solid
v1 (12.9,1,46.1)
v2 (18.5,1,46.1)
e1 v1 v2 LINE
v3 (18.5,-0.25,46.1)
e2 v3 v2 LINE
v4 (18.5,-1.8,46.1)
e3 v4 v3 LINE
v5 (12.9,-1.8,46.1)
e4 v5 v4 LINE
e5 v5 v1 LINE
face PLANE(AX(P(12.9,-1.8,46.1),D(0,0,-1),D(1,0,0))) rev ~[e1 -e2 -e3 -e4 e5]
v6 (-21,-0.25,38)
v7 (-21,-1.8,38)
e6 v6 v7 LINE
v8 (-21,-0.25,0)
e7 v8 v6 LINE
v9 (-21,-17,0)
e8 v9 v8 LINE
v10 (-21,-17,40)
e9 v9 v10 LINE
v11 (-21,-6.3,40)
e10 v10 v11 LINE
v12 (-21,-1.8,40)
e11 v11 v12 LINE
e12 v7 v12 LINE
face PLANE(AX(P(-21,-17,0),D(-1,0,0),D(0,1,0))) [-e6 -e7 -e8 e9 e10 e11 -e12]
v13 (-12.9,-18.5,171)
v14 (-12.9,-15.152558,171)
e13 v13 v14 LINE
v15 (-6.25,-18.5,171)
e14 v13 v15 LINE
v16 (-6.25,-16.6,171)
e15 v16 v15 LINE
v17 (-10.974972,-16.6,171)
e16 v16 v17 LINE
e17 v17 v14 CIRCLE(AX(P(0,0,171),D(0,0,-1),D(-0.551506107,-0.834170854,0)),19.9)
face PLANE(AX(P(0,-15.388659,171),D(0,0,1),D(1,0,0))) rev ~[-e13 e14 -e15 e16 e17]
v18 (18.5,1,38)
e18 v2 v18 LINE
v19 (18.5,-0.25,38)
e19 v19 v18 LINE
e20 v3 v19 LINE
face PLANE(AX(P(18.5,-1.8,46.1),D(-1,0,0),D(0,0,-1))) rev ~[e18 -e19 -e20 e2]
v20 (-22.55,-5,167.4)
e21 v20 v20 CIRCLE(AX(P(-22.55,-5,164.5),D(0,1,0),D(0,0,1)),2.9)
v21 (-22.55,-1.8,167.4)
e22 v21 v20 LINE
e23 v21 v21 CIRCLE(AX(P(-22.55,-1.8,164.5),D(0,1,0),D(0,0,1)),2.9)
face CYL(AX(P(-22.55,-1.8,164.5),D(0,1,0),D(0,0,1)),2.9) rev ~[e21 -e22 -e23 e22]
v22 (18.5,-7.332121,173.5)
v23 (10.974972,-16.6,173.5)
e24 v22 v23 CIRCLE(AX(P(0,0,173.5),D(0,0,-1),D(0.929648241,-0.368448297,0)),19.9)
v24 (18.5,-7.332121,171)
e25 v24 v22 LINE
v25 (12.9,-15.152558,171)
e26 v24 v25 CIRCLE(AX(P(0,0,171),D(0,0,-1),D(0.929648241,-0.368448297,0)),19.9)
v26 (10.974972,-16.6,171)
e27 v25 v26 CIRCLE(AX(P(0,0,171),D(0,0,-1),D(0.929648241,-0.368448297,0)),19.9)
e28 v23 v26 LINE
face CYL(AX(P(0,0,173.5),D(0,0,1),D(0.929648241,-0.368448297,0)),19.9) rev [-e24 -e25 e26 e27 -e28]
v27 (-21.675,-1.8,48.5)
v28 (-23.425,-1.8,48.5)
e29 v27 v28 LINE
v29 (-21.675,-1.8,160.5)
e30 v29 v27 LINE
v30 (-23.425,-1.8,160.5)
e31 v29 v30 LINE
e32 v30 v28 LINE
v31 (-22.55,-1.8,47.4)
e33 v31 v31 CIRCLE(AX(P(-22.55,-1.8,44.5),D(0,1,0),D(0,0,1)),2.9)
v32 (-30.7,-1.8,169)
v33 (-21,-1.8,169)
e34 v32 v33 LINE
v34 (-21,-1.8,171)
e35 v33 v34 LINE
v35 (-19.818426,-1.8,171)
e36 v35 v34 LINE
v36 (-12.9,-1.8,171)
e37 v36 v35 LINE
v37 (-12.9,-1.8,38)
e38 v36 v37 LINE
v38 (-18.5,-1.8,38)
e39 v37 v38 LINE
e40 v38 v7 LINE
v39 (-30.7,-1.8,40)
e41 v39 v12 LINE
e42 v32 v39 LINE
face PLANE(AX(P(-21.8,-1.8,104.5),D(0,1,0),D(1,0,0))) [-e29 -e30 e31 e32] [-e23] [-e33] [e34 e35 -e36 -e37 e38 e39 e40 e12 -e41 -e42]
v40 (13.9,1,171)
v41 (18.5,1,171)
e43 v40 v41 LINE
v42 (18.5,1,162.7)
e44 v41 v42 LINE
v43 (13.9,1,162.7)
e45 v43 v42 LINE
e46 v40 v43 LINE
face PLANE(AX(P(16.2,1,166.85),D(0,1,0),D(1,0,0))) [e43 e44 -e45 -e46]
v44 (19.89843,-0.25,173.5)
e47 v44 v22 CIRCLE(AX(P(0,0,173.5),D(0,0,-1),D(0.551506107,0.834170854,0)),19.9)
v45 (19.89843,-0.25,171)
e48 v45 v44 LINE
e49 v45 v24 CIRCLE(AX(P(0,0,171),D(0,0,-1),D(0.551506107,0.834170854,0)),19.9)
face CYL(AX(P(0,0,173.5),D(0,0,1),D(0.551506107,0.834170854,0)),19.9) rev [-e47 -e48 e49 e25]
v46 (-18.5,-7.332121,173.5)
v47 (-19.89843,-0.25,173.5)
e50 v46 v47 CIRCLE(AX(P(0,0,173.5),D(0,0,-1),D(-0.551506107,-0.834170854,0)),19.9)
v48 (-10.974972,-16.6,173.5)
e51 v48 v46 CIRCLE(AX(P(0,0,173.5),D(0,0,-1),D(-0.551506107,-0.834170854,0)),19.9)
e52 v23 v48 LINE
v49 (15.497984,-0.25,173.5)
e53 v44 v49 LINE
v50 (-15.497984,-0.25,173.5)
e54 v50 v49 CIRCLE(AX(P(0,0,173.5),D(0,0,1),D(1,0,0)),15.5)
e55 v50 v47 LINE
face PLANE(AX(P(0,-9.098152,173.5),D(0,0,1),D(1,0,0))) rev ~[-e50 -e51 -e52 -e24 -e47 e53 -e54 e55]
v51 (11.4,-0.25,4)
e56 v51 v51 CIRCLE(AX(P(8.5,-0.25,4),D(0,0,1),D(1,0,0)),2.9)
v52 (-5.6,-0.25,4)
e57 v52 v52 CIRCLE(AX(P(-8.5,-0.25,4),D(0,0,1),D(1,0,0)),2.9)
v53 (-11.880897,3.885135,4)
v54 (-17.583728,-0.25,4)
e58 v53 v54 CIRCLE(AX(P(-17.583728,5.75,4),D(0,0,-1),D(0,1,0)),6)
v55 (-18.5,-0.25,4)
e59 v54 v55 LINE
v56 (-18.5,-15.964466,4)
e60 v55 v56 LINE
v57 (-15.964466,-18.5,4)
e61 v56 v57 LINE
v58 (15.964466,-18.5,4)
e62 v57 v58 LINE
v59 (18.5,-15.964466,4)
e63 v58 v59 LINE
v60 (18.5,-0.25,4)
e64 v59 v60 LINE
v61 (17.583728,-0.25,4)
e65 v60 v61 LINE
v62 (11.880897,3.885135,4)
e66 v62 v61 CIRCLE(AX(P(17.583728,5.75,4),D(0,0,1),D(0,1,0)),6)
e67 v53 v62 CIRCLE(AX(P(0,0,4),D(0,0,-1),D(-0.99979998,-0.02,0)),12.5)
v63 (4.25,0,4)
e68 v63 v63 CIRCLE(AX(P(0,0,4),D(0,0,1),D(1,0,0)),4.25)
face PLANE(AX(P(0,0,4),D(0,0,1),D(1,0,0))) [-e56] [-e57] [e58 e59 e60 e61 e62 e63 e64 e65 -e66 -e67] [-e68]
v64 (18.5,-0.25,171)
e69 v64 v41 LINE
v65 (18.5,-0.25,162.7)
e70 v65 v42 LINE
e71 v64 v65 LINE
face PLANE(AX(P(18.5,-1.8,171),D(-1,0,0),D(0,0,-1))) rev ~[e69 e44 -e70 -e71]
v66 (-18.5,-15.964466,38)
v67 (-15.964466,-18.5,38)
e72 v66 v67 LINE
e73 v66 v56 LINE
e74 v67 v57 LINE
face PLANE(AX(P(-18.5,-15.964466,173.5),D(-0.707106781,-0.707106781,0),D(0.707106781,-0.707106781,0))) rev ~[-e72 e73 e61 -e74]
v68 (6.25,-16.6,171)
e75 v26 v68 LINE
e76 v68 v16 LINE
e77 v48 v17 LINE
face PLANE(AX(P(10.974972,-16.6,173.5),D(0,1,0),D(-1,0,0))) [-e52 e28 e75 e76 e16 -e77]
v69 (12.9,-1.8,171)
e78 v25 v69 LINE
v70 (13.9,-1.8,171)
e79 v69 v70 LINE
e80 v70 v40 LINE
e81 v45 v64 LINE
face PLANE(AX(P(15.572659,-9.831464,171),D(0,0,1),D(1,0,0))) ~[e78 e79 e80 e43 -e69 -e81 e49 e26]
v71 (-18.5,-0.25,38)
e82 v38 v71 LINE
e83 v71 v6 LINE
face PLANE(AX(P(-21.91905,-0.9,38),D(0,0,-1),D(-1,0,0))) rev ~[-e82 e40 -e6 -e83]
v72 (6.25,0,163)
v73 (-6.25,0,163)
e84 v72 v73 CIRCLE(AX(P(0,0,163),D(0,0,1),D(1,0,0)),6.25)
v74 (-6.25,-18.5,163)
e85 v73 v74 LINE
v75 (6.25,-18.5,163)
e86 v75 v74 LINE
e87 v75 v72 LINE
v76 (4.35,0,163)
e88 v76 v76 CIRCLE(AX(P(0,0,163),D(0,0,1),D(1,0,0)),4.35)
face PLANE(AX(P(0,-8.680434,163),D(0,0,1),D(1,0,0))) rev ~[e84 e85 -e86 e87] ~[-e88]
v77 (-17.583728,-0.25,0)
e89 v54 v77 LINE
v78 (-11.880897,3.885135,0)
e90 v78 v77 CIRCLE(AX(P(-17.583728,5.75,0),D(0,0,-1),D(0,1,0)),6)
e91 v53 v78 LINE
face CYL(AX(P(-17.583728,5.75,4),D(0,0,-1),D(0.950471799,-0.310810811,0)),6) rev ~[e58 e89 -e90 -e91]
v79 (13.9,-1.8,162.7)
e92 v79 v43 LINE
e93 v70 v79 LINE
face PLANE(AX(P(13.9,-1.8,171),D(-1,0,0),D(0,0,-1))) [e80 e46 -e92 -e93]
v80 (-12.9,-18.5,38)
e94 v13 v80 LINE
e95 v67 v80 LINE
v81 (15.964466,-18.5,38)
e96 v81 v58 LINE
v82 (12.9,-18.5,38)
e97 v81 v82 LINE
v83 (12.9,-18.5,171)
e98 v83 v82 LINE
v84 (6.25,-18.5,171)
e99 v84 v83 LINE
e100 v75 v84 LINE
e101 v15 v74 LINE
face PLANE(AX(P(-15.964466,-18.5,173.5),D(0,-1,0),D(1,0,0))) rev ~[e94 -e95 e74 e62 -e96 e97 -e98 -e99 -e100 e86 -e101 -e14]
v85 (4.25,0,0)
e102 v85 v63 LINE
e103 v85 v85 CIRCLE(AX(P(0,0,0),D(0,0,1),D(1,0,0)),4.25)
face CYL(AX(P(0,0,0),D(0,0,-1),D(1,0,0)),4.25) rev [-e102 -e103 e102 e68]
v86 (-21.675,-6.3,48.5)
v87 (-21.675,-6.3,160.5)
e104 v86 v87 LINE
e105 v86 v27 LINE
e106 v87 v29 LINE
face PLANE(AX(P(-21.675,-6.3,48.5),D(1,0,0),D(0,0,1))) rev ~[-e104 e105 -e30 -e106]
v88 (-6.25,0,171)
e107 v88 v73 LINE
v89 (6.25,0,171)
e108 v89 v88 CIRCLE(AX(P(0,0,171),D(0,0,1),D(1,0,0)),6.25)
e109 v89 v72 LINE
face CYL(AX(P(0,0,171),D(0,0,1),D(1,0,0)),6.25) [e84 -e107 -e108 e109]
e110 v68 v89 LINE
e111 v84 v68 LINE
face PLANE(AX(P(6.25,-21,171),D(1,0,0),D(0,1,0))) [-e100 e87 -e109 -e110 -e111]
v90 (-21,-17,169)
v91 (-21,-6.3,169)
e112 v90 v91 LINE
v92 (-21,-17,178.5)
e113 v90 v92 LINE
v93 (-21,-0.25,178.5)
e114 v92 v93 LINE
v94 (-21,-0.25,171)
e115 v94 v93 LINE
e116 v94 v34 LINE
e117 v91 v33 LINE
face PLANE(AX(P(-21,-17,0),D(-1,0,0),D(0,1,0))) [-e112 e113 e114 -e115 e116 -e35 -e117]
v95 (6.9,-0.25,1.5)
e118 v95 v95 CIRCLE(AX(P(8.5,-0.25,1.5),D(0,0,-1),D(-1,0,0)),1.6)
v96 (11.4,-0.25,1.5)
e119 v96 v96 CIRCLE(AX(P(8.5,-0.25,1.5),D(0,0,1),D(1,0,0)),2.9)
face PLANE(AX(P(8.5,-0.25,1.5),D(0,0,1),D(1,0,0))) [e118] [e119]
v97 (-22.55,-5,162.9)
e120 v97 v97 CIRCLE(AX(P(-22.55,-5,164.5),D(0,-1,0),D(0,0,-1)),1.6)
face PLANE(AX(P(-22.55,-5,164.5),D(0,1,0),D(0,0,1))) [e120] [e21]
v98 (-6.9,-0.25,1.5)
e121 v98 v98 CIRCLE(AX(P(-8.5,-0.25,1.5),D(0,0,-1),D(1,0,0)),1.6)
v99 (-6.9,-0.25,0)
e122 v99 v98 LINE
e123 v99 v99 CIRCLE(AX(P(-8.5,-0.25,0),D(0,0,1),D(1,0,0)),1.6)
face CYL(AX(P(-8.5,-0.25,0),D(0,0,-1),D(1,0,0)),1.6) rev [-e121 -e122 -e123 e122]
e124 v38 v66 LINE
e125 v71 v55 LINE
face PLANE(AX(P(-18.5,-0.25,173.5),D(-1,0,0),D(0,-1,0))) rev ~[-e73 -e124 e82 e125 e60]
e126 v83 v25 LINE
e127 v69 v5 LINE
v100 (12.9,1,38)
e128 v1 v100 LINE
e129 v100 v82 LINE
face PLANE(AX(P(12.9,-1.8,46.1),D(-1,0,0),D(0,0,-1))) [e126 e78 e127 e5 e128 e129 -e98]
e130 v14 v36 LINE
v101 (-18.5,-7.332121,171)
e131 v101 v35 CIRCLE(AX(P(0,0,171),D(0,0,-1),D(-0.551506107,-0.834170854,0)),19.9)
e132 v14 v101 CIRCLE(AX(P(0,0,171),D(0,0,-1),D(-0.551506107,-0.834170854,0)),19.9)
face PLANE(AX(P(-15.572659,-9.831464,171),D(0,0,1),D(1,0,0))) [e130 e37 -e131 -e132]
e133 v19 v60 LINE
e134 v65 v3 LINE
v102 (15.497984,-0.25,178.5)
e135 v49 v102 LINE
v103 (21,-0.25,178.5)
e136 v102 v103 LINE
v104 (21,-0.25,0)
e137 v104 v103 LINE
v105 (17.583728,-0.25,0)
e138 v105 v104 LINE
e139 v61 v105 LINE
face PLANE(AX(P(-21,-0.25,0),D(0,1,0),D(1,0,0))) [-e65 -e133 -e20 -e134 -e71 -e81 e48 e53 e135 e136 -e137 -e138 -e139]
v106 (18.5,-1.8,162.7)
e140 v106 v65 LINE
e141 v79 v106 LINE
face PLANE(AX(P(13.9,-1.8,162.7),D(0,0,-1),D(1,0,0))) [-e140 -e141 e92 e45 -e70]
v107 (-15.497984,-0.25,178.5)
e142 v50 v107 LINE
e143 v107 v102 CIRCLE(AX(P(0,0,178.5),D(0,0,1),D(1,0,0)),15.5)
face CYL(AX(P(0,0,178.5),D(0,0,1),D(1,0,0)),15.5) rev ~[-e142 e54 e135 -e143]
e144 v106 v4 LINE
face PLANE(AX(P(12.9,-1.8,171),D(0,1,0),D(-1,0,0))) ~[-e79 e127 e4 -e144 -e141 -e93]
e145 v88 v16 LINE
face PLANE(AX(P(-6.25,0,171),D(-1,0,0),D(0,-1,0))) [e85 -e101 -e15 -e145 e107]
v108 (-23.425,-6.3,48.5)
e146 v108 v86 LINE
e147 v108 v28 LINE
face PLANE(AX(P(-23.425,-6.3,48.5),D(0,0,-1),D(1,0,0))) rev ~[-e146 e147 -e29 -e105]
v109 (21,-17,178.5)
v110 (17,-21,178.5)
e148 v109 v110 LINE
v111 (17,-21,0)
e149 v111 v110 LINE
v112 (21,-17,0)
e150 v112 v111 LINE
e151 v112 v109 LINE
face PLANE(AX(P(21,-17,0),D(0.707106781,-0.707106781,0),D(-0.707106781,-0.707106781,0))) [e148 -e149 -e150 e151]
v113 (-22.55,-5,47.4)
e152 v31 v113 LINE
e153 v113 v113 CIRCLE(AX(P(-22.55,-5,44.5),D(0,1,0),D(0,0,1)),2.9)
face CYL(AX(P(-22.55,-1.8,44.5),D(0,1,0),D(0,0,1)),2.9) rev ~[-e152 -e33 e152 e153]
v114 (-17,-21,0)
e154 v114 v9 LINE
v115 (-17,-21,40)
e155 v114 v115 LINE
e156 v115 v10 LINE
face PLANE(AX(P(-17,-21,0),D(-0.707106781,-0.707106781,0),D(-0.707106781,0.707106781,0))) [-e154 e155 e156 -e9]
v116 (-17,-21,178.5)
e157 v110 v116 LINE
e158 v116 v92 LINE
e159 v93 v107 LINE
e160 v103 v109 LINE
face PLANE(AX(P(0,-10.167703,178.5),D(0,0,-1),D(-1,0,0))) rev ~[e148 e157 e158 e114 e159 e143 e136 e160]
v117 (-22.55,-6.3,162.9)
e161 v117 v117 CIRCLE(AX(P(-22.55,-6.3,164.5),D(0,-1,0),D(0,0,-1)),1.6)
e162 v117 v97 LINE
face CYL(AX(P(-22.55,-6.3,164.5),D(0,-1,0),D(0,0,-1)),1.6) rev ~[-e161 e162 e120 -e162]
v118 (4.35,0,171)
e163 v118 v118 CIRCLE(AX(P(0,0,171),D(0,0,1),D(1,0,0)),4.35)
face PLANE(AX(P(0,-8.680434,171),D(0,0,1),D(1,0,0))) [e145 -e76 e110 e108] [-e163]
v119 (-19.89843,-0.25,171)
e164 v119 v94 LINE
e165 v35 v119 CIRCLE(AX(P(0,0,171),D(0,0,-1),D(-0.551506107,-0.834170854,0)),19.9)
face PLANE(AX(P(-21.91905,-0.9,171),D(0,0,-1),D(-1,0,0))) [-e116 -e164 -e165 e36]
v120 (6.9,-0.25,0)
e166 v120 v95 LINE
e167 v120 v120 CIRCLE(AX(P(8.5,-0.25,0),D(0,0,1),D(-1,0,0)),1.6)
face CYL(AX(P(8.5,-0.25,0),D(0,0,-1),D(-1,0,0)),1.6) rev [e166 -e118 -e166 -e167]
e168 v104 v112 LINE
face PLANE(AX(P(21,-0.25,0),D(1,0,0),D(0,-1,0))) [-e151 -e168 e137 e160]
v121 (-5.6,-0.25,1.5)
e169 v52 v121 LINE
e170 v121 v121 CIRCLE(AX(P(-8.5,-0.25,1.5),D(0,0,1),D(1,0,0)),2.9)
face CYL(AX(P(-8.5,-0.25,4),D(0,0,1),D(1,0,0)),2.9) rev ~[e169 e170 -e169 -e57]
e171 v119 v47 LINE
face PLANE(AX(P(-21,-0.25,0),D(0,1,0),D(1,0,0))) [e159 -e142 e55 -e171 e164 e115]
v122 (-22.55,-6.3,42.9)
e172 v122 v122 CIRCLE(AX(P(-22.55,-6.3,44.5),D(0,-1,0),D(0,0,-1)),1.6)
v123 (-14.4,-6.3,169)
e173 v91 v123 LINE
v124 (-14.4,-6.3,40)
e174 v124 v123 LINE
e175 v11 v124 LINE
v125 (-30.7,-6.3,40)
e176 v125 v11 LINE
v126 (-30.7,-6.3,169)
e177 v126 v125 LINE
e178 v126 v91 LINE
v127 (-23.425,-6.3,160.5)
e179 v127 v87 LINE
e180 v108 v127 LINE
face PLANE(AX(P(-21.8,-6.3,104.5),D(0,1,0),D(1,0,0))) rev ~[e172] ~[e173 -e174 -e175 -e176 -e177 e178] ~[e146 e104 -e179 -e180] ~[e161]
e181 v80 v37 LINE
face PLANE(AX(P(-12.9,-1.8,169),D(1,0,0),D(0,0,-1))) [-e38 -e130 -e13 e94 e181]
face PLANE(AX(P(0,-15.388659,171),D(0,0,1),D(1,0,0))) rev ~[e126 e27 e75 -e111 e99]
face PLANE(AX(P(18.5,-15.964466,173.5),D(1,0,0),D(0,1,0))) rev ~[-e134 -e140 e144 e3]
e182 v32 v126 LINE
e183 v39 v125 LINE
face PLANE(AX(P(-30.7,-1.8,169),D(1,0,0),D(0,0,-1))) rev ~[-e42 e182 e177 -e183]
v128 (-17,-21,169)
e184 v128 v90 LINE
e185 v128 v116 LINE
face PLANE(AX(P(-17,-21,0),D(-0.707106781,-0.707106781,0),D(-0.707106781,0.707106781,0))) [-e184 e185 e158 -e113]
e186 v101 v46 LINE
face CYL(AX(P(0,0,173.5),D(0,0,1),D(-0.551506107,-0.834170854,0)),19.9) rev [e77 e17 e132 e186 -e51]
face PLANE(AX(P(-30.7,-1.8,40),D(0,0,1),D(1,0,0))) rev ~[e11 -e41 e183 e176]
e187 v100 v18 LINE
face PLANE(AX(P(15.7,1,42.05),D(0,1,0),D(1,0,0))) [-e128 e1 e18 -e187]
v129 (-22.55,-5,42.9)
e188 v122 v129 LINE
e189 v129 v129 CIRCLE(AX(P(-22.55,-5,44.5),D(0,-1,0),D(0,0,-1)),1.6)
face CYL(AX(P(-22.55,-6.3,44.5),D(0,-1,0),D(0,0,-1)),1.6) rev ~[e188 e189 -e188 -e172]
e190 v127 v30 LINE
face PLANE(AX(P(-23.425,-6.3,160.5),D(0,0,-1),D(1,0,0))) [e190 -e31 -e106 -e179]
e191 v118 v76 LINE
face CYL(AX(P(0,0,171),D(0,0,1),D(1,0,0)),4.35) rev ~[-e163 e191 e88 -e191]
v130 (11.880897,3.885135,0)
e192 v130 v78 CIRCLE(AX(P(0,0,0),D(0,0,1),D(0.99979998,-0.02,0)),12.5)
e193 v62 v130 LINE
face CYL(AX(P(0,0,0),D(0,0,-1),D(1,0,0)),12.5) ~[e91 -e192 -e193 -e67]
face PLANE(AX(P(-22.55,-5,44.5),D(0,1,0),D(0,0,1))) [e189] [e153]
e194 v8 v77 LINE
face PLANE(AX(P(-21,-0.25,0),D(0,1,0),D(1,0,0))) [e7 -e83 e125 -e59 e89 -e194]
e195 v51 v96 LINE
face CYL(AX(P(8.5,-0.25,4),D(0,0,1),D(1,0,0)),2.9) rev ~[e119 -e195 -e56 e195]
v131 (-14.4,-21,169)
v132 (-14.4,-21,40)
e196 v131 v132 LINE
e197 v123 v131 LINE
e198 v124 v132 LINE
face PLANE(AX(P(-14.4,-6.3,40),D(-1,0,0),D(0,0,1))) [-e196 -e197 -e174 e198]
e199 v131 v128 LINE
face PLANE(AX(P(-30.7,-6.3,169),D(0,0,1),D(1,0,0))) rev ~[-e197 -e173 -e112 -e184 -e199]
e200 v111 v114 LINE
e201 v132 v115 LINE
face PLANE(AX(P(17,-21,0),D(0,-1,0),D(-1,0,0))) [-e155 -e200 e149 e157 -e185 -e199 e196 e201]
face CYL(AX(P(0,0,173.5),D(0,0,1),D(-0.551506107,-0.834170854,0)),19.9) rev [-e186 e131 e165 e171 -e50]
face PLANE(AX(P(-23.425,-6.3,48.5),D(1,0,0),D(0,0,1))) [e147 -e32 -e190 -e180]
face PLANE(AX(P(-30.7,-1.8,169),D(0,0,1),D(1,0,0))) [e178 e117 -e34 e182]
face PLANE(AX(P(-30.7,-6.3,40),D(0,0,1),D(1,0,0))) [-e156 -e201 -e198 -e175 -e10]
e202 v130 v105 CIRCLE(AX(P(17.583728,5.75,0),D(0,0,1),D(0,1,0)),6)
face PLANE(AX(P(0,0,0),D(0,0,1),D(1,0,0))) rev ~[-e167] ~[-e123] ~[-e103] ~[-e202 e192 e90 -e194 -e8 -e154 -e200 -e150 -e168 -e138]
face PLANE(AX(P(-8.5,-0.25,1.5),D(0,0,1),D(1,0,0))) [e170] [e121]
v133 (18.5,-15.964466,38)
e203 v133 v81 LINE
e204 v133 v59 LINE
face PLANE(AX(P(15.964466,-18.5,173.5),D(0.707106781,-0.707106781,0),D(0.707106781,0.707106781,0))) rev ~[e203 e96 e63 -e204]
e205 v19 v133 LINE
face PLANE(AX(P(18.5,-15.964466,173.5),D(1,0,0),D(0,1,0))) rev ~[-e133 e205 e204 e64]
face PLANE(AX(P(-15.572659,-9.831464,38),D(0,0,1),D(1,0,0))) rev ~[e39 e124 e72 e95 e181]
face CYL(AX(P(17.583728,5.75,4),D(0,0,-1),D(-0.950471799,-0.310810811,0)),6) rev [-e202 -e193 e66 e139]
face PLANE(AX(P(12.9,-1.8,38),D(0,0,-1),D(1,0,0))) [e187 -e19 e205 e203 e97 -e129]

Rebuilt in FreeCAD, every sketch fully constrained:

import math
import FreeCAD as App
import Part
import Sketcher
Q = App.Units.Quantity


def edges_at(feature, points):
    """Names of the edges that pass closest to the given points."""
    edges = feature.Shape.Edges
    near = lambda p: min(range(len(edges)), key=lambda i: edges[i].distToShape(Part.Vertex(*p))[0])
    return sorted({f"Edge{near(p) + 1}" for p in points})


def add_polygon(sketch, points):
    """Adds a closed chain of lines whose ends are joined by coincident constraints."""
    first, n = sketch.GeometryCount, len(points)
    for a, b in zip(points, points[1:] + points[:1]):
        sketch.addGeometry(Part.LineSegment(App.Vector(*a, 0), App.Vector(*b, 0)), False)
    for i in range(n):
        sketch.addConstraint(Sketcher.Constraint("Coincident", first + i, 2, first + (i + 1) % n, 1))

doc = App.newDocument("Part")
params = doc.addObject("Spreadsheet::Sheet", "Params")
for row, (alias, value) in enumerate([
    ("sketch1_width", "42 mm"),
    ("sketch1_width2", "34 mm"),
    ("sketch1_height", "16.75 mm"),
    ("pad1_length", "178.5 mm"),
    ("sketch2_width", "37 mm"),
    ("pocket1_length", "169.5 mm"),
    ("sketch3_diameter", "31 mm"),
    ("pocket2_length", "5 mm"),
    ("sketch4_radius", "19.9 mm"),
    ("pocket3_length", "2.5 mm"),
    ("sketch5_height", "21 mm"),
    ("sketch5_radius", "6.25 mm"),
    ("pad2_length", "8 mm"),
    ("sketch6_width", "5.6 mm"),
    ("sketch6_height", "16.7 mm"),
    ("pad3_length", "133 mm"),
    ("sketch7_diameter", "8.7 mm"),
    ("pocket4_length", "10 mm"),
    ("sketch8_height", "1.8 mm"),
    ("pocket5_length", "133 mm"),
    ("sketch9_height", "129 mm"),
    ("sketch9_width", "17.8 mm"),
    ("pad4_length", "4.5 mm"),
    ("sketch10_height", "129 mm"),
    ("sketch10_width", "16.3 mm"),
    ("sketch11_diameter", "3.2 mm"),
    ("sketch11_height", "112 mm"),
    ("sketch11_width", "1.75 mm"),
    ("sketch12_diameter", "5.8 mm"),
    ("pocket8_length", "3.2 mm"),
    ("sketch13_diameter", "25 mm"),
    ("pad5_length", "4 mm"),
    ("sketch14_diameter", "8.5 mm"),
    ("sketch14_diameter2", "3.2 mm"),
    ("pocket9_length", "4 mm"),
    ("sketch15_diameter", "5.8 mm"),
    ("pocket10_length", "2.5 mm"),
    ("fillet_radius", "6 mm"),
    ("sketch16_width", "5.6 mm"),
    ("sketch16_width2", "4.6 mm"),
    ("sketch16_height", "8.1 mm"),
    ("sketch16_height2", "8.3 mm"),
    ("pad6_length", "2.8 mm"),
    ("sketch17_radius", "19.9 mm"),
    ("pad7_length", "2.5 mm"),
], start=1):
    params.set(f"A{row}", alias)
    params.set(f"B{row}", "=" + value)
    params.setAlias(f"B{row}", alias)

body = doc.addObject("PartDesign::Body", "Body")

# Sketch on XY plane
sketch1 = doc.addObject("Sketcher::SketchObject", "Sketch")
body.addObject(sketch1)
sketch1.AttachmentSupport = (doc.XY_Plane, [""])
sketch1.MapMode = "FlatFace"
add_polygon(sketch1, [(21, 0), (-21, 0), (-21, -17), (-17, -21), (17, -21), (21, -17)])  # lines 0-5
sketch1.addConstraint(Sketcher.Constraint("Horizontal", 0))
sketch1.addConstraint(Sketcher.Constraint("Vertical", 1))
sketch1.addConstraint(Sketcher.Constraint("Horizontal", 3))
sketch1.addConstraint(Sketcher.Constraint("Vertical", 5))
sketch1.addConstraint(Sketcher.Constraint("Symmetric", 1, 2, 4, 2, -2))
sketch1.addConstraint(Sketcher.Constraint("Perpendicular", 2, 4))
sketch1.addConstraint(Sketcher.Constraint("Equal", 2, 4))
sketch1.addConstraint(Sketcher.Constraint("DistanceX", 0, 2, 0, 1, 42.0))
sketch1.addConstraint(Sketcher.Constraint("DistanceX", 3, 1, 3, 2, 34.0))
sketch1.addConstraint(Sketcher.Constraint("DistanceY", 1, 2, -1, 1, 17.0))
sketch1.addConstraint(Sketcher.Constraint("DistanceY", 1, 2, 1, 1, 16.75))
sketch1.setExpression("Constraints[13]", "Params.sketch1_width")
sketch1.setExpression("Constraints[14]", "Params.sketch1_width2")
sketch1.setExpression("Constraints[16]", "Params.sketch1_height")
pad1 = doc.addObject("PartDesign::Pad", "Pad")
body.addObject(pad1)
pad1.Profile = sketch1
pad1.setExpression("Length", "Params.pad1_length")

# Sketch on XY plane
sketch2 = doc.addObject("Sketcher::SketchObject", "Sketch001")
body.addObject(sketch2)
sketch2.AttachmentSupport = (doc.XY_Plane, [""])
sketch2.MapMode = "FlatFace"
sketch2.AttachmentOffset = App.Placement(App.Vector(0, 0, 173.5), App.Rotation())
add_polygon(sketch2, [(-18.5, -16), (-16, -18.5), (16, -18.5), (18.5, -16), (18.5, -0.2), (-18.5, -0.2)])  # lines 0-5
sketch2.addConstraint(Sketcher.Constraint("Horizontal", 1))
sketch2.addConstraint(Sketcher.Constraint("Vertical", 3))
sketch2.addConstraint(Sketcher.Constraint("Horizontal", 4))
sketch2.addConstraint(Sketcher.Constraint("Vertical", 5))
sketch2.addConstraint(Sketcher.Constraint("Symmetric", 2, 2, 5, 2, -2))
sketch2.addConstraint(Sketcher.Constraint("Perpendicular", 0, 2))
sketch2.addConstraint(Sketcher.Constraint("Equal", 0, 2))
sketch2.addConstraint(Sketcher.Constraint("DistanceX", 4, 2, 4, 1, 37.0))
sketch2.addConstraint(Sketcher.Constraint("DistanceY", 0, 2, -1, 1, 18.5))
sketch2.addConstraint(Sketcher.Constraint("DistanceY", 3, 2, -1, 1, 0.25))
sketch2.addConstraint(Sketcher.Constraint("DistanceX", 1, 1, 1, 2, 31.928932))
sketch2.setExpression("Constraints[13]", "Params.sketch2_width")
pocket1 = doc.addObject("PartDesign::Pocket", "Pocket")
body.addObject(pocket1)
pocket1.Profile = sketch2
pocket1.setExpression("Length", "Params.pocket1_length")

# Sketch on XY plane
sketch3 = doc.addObject("Sketcher::SketchObject", "Sketch002")
body.addObject(sketch3)
sketch3.AttachmentSupport = (doc.XY_Plane, [""])
sketch3.MapMode = "FlatFace"
sketch3.AttachmentOffset = App.Placement(App.Vector(0, 0, 178.5), App.Rotation())
sketch3.addGeometry(Part.Circle(App.Vector(0, 0, 0), App.Vector(0, 0, 1), 16), False)
sketch3.addConstraint(Sketcher.Constraint("Coincident", 0, 3, -1, 1))
sketch3.addConstraint(Sketcher.Constraint("Diameter", 0, 31.0))
sketch3.setExpression("Constraints[1]", "Params.sketch3_diameter")
pocket2 = doc.addObject("PartDesign::Pocket", "Pocket001")
body.addObject(pocket2)
pocket2.Profile = sketch3
pocket2.setExpression("Length", "Params.pocket2_length")

# Sketch on XY plane
sketch4 = doc.addObject("Sketcher::SketchObject", "Sketch003")
body.addObject(sketch4)
sketch4.AttachmentSupport = (doc.XY_Plane, [""])
sketch4.MapMode = "FlatFace"
sketch4.AttachmentOffset = App.Placement(App.Vector(0, 0, 173.5), App.Rotation())
sketch4.addGeometry(Part.LineSegment(App.Vector(11, 17, 0), App.Vector(-11, 17, 0)), False)
sketch4.addGeometry(Part.ArcOfCircle(Part.Circle(App.Vector(0, 0, 0), App.Vector(0, 0, 1), 20), math.radians(123), math.radians(237)), False)
sketch4.addGeometry(Part.LineSegment(App.Vector(-11, -17, 0), App.Vector(11, -17, 0)), False)
sketch4.addGeometry(Part.ArcOfCircle(Part.Circle(App.Vector(0, 0, 0), App.Vector(0, 0, 1), 20), math.radians(-57), math.radians(57)), False)
sketch4.addConstraint(Sketcher.Constraint("Coincident", 0, 2, 1, 1))
sketch4.addConstraint(Sketcher.Constraint("Coincident", 1, 2, 2, 1))
sketch4.addConstraint(Sketcher.Constraint("Coincident", 2, 2, 3, 1))
sketch4.addConstraint(Sketcher.Constraint("Coincident", 3, 2, 0, 1))
sketch4.addConstraint(Sketcher.Constraint("Horizontal", 0))
sketch4.addConstraint(Sketcher.Constraint("Horizontal", 2))
sketch4.addConstraint(Sketcher.Constraint("Coincident", 1, 3, -1, 1))
sketch4.addConstraint(Sketcher.Constraint("Coincident", 3, 3, -1, 1))
sketch4.addConstraint(Sketcher.Constraint("Equal", 1, 3))
sketch4.addConstraint(Sketcher.Constraint("Vertical", 0, 2, 1, 2))
sketch4.addConstraint(Sketcher.Constraint("Radius", 1, 19.9))
sketch4.addConstraint(Sketcher.Constraint("DistanceY", -1, 1, 0, 2, 16.6))
sketch4.setExpression("Constraints[10]", "Params.sketch4_radius")
pocket3 = doc.addObject("PartDesign::Pocket", "Pocket002")
body.addObject(pocket3)
pocket3.Profile = sketch4
pocket3.setExpression("Length", "Params.pocket3_length")

# Sketch on XY plane
sketch5 = doc.addObject("Sketcher::SketchObject", "Sketch004")
body.addObject(sketch5)
sketch5.AttachmentSupport = (doc.XY_Plane, [""])
sketch5.MapMode = "FlatFace"
sketch5.AttachmentOffset = App.Placement(App.Vector(0, 0, 171), App.Rotation())
sketch5.addGeometry(Part.LineSegment(App.Vector(-6, 0, 0), App.Vector(-6, -21, 0)), False)
sketch5.addGeometry(Part.LineSegment(App.Vector(-6, -21, 0), App.Vector(6, -21, 0)), False)
sketch5.addGeometry(Part.LineSegment(App.Vector(6, -21, 0), App.Vector(6, 0, 0)), False)
sketch5.addGeometry(Part.ArcOfCircle(Part.Circle(App.Vector(0, 0, 0), App.Vector(0, 0, 1), 6), math.radians(0), math.radians(180)), False)
sketch5.addConstraint(Sketcher.Constraint("Coincident", 0, 2, 1, 1))
sketch5.addConstraint(Sketcher.Constraint("Coincident", 1, 2, 2, 1))
sketch5.addConstraint(Sketcher.Constraint("Tangent", 2, 2, 3, 1))
sketch5.addConstraint(Sketcher.Constraint("Tangent", 3, 2, 0, 1))
sketch5.addConstraint(Sketcher.Constraint("Vertical", 0))
sketch5.addConstraint(Sketcher.Constraint("Horizontal", 1))
sketch5.addConstraint(Sketcher.Constraint("Vertical", 2))
sketch5.addConstraint(Sketcher.Constraint("Coincident", 3, 3, -1, 1))
sketch5.addConstraint(Sketcher.Constraint("DistanceY", 0, 2, 0, 1, 21.0))
sketch5.addConstraint(Sketcher.Constraint("Radius", 3, 6.25))
sketch5.setExpression("Constraints[8]", "Params.sketch5_height")
sketch5.setExpression("Constraints[9]", "Params.sketch5_radius")
pad2 = doc.addObject("PartDesign::Pad", "Pad001")
body.addObject(pad2)
pad2.Profile = sketch5
pad2.setExpression("Length", "Params.pad2_length")
pad2.Reversed = True

# Sketch on XY plane
sketch6 = doc.addObject("Sketcher::SketchObject", "Sketch005")
body.addObject(sketch6)
sketch6.AttachmentSupport = (doc.XY_Plane, [""])
sketch6.MapMode = "FlatFace"
sketch6.AttachmentOffset = App.Placement(App.Vector(0, 0, 171), App.Rotation())
add_polygon(sketch6, [(-18.5, -1.8), (-18.5, -16), (-16, -18.5), (-12.9, -18.5), (-12.9, -1.8)])  # lines 0-4
sketch6.addConstraint(Sketcher.Constraint("Vertical", 0))
sketch6.addConstraint(Sketcher.Constraint("Horizontal", 2))
sketch6.addConstraint(Sketcher.Constraint("Vertical", 3))
sketch6.addConstraint(Sketcher.Constraint("Horizontal", 4))
sketch6.addConstraint(Sketcher.Constraint("Angle", 1, Q("-45 deg")))
sketch6.addConstraint(Sketcher.Constraint("DistanceX", 4, 2, 4, 1, 5.6))
sketch6.addConstraint(Sketcher.Constraint("DistanceY", 3, 1, 3, 2, 16.7))
sketch6.addConstraint(Sketcher.Constraint("DistanceX", 0, 2, -1, 1, 18.5))
sketch6.addConstraint(Sketcher.Constraint("DistanceY", 1, 2, -1, 1, 18.5))
sketch6.addConstraint(Sketcher.Constraint("DistanceX", 2, 1, 2, 2, 3.064466))
sketch6.setExpression("Constraints[10]", "Params.sketch6_width")
sketch6.setExpression("Constraints[11]", "Params.sketch6_height")
pad3 = doc.addObject("PartDesign::Pad", "Pad002")
body.addObject(pad3)
pad3.Profile = sketch6
pad3.setExpression("Length", "Params.pad3_length")
pad3.Reversed = True
doc.recompute()

mirrored = doc.addObject("PartDesign::Mirrored", "Mirrored")
body.addObject(mirrored)
mirrored.Originals = [pad3]
mirrored.MirrorPlane = (doc.YZ_Plane, [""])
body.Tip = mirrored

# Sketch on XY plane
sketch7 = doc.addObject("Sketcher::SketchObject", "Sketch006")
body.addObject(sketch7)
sketch7.AttachmentSupport = (doc.XY_Plane, [""])
sketch7.MapMode = "FlatFace"
sketch7.AttachmentOffset = App.Placement(App.Vector(0, 0, 171), App.Rotation())
sketch7.addGeometry(Part.Circle(App.Vector(0, 0, 0), App.Vector(0, 0, 1), 4.3), False)
sketch7.addConstraint(Sketcher.Constraint("Coincident", 0, 3, -1, 1))
sketch7.addConstraint(Sketcher.Constraint("Diameter", 0, 8.7))
sketch7.setExpression("Constraints[1]", "Params.sketch7_diameter")
pocket4 = doc.addObject("PartDesign::Pocket", "Pocket003")
body.addObject(pocket4)
pocket4.Profile = sketch7
pocket4.setExpression("Length", "Params.pocket4_length")

# Sketch on XY plane
sketch8 = doc.addObject("Sketcher::SketchObject", "Sketch007")
body.addObject(sketch8)
sketch8.AttachmentSupport = (doc.XY_Plane, [""])
sketch8.MapMode = "FlatFace"
sketch8.AttachmentOffset = App.Placement(App.Vector(0, 0, 38), App.Rotation())
add_polygon(sketch8, [(-18.5, 0), (-18.5, -1.8), (-25.3, -1.8), (-25.3, 0)])  # lines 0-3
sketch8.addConstraint(Sketcher.Constraint("Vertical", 0))
sketch8.addConstraint(Sketcher.Constraint("Horizontal", 1))
sketch8.addConstraint(Sketcher.Constraint("Vertical", 2))
sketch8.addConstraint(Sketcher.Constraint("Horizontal", 3))
sketch8.addConstraint(Sketcher.Constraint("PointOnObject", 2, 2, -1))
sketch8.addConstraint(Sketcher.Constraint("DistanceY", 0, 2, 0, 1, 1.8))
sketch8.addConstraint(Sketcher.Constraint("DistanceX", 0, 2, -1, 1, 18.5))
sketch8.addConstraint(Sketcher.Constraint("DistanceX", 1, 2, 1, 1, 6.8381))
sketch8.setExpression("Constraints[9]", "Params.sketch8_height")
pocket5 = doc.addObject("PartDesign::Pocket", "Pocket004")
body.addObject(pocket5)
pocket5.Profile = sketch8
pocket5.setExpression("Length", "Params.pocket5_length")
pocket5.Reversed = True

# Sketch on XZ plane
sketch9 = doc.addObject("Sketcher::SketchObject", "Sketch008")
body.addObject(sketch9)
sketch9.AttachmentSupport = (doc.XZ_Plane, [""])
sketch9.MapMode = "FlatFace"
sketch9.AttachmentOffset = App.Placement(App.Vector(0, 0, 1.8), App.Rotation())
add_polygon(sketch9, [(-31, 40), (-31, 169), (-13, 169), (-13, 40)])  # lines 0-3
sketch9.addConstraint(Sketcher.Constraint("Vertical", 0))
sketch9.addConstraint(Sketcher.Constraint("Horizontal", 1))
sketch9.addConstraint(Sketcher.Constraint("Vertical", 2))
sketch9.addConstraint(Sketcher.Constraint("Horizontal", 3))
sketch9.addConstraint(Sketcher.Constraint("DistanceY", 0, 1, 0, 2, 129.0))
sketch9.addConstraint(Sketcher.Constraint("DistanceX", 1, 1, 1, 2, 17.8))
sketch9.addConstraint(Sketcher.Constraint("DistanceY", -1, 1, 0, 2, 169.0))
sketch9.addConstraint(Sketcher.Constraint("DistanceX", 0, 2, -1, 1, 30.7))
sketch9.setExpression("Constraints[8]", "Params.sketch9_height")
sketch9.setExpression("Constraints[9]", "Params.sketch9_width")
pad4 = doc.addObject("PartDesign::Pad", "Pad003")
body.addObject(pad4)
pad4.Profile = sketch9
pad4.setExpression("Length", "Params.pad4_length")

# Sketch on XZ plane
sketch10 = doc.addObject("Sketcher::SketchObject", "Sketch009")
body.addObject(sketch10)
sketch10.AttachmentSupport = (doc.XZ_Plane, [""])
sketch10.MapMode = "FlatFace"
sketch10.AttachmentOffset = App.Placement(App.Vector(0, 0, 6.3), App.Rotation())
add_polygon(sketch10, [(-31, 169), (-31, 40), (-14, 40), (-14, 169)])  # lines 0-3
sketch10.addConstraint(Sketcher.Constraint("Vertical", 0))
sketch10.addConstraint(Sketcher.Constraint("Horizontal", 1))
sketch10.addConstraint(Sketcher.Constraint("Vertical", 2))
sketch10.addConstraint(Sketcher.Constraint("Horizontal", 3))
sketch10.addConstraint(Sketcher.Constraint("DistanceY", 0, 2, 0, 1, 129.0))
sketch10.addConstraint(Sketcher.Constraint("DistanceX", 1, 1, 1, 2, 16.3))
sketch10.addConstraint(Sketcher.Constraint("DistanceY", -1, 1, 0, 2, 40.0))
sketch10.addConstraint(Sketcher.Constraint("DistanceX", 0, 2, -1, 1, 30.7))
sketch10.setExpression("Constraints[8]", "Params.sketch10_height")
sketch10.setExpression("Constraints[9]", "Params.sketch10_width")
pocket6 = doc.addObject("PartDesign::Pocket", "Pocket005")
body.addObject(pocket6)
pocket6.Profile = sketch10
pocket6.Type = "ThroughAll"
pocket6.Reversed = True

# Sketch on XZ plane
sketch11 = doc.addObject("Sketcher::SketchObject", "Sketch010")
body.addObject(sketch11)
sketch11.AttachmentSupport = (doc.XZ_Plane, [""])
sketch11.MapMode = "FlatFace"
sketch11.AttachmentOffset = App.Placement(App.Vector(0, 0, 6.3), App.Rotation())
sketch11.addGeometry(Part.Circle(App.Vector(-22.6, 164.5, 0), App.Vector(0, 0, 1), 1.6), False)  # 0
sketch11.addGeometry(Part.Circle(App.Vector(-22.6, 44.5, 0), App.Vector(0, 0, 1), 1.6), False)  # 1
add_polygon(sketch11, [(-23.4, 160.5), (-23.4, 48.5), (-21.7, 48.5), (-21.7, 160.5)])  # lines 2-5
sketch11.addConstraint(Sketcher.Constraint("Vertical", 2))
sketch11.addConstraint(Sketcher.Constraint("Horizontal", 3))
sketch11.addConstraint(Sketcher.Constraint("Vertical", 4))
sketch11.addConstraint(Sketcher.Constraint("Horizontal", 5))
sketch11.addConstraint(Sketcher.Constraint("Equal", 0, 1))
sketch11.addConstraint(Sketcher.Constraint("Vertical", 0, 3, 1, 3))
sketch11.addConstraint(Sketcher.Constraint("Diameter", 0, 3.2))
sketch11.addConstraint(Sketcher.Constraint("DistanceY", 2, 2, 2, 1, 112.0))
sketch11.addConstraint(Sketcher.Constraint("DistanceY", 1, 3, 0, 3, 120.0))
sketch11.addConstraint(Sketcher.Constraint("DistanceY", 1, 3, 2, 2, 4.0))
sketch11.addConstraint(Sketcher.Constraint("DistanceX", 3, 1, 3, 2, 1.75))
sketch11.addConstraint(Sketcher.Constraint("DistanceY", -1, 1, 0, 3, 164.5))
sketch11.addConstraint(Sketcher.Constraint("DistanceX", 0, 3, -1, 1, 22.55))
sketch11.addConstraint(Sketcher.Constraint("DistanceX", 2, 2, -1, 1, 23.425))
sketch11.setExpression("Constraints[10]", "Params.sketch11_diameter")
sketch11.setExpression("Constraints[11]", "Params.sketch11_height")
sketch11.setExpression("Constraints[14]", "Params.sketch11_width")
pocket7 = doc.addObject("PartDesign::Pocket", "Pocket006")
body.addObject(pocket7)
pocket7.Profile = sketch11
pocket7.Type = "ThroughAll"

# Sketch on XZ plane
sketch12 = doc.addObject("Sketcher::SketchObject", "Sketch011")
body.addObject(sketch12)
sketch12.AttachmentSupport = (doc.XZ_Plane, [""])
sketch12.MapMode = "FlatFace"
sketch12.AttachmentOffset = App.Placement(App.Vector(0, 0, 1.8), App.Rotation())
sketch12.addGeometry(Part.Circle(App.Vector(-22.6, 164.5, 0), App.Vector(0, 0, 1), 2.9), False)
sketch12.addGeometry(Part.Circle(App.Vector(-22.6, 44.5, 0), App.Vector(0, 0, 1), 2.9), False)
sketch12.addConstraint(Sketcher.Constraint("Equal", 0, 1))
sketch12.addConstraint(Sketcher.Constraint("Vertical", 0, 3, 1, 3))
sketch12.addConstraint(Sketcher.Constraint("Diameter", 0, 5.8))
sketch12.addConstraint(Sketcher.Constraint("DistanceY", 1, 3, 0, 3, 120.0))
sketch12.addConstraint(Sketcher.Constraint("DistanceY", -1, 1, 0, 3, 164.5))
sketch12.addConstraint(Sketcher.Constraint("DistanceX", 0, 3, -1, 1, 22.55))
sketch12.setExpression("Constraints[2]", "Params.sketch12_diameter")
pocket8 = doc.addObject("PartDesign::Pocket", "Pocket007")
body.addObject(pocket8)
pocket8.Profile = sketch12
pocket8.setExpression("Length", "Params.pocket8_length")
pocket8.Reversed = True

# Sketch on XY plane
sketch13 = doc.addObject("Sketcher::SketchObject", "Sketch012")
body.addObject(sketch13)
sketch13.AttachmentSupport = (doc.XY_Plane, [""])
sketch13.MapMode = "FlatFace"
sketch13.addGeometry(Part.Circle(App.Vector(0, 0, 0), App.Vector(0, 0, 1), 12), False)
sketch13.addConstraint(Sketcher.Constraint("Coincident", 0, 3, -1, 1))
sketch13.addConstraint(Sketcher.Constraint("Diameter", 0, 25.0))
sketch13.setExpression("Constraints[1]", "Params.sketch13_diameter")
pad5 = doc.addObject("PartDesign::Pad", "Pad004")
body.addObject(pad5)
pad5.Profile = sketch13
pad5.setExpression("Length", "Params.pad5_length")

# Sketch on XY plane
sketch14 = doc.addObject("Sketcher::SketchObject", "Sketch013")
body.addObject(sketch14)
sketch14.AttachmentSupport = (doc.XY_Plane, [""])
sketch14.MapMode = "FlatFace"
sketch14.addGeometry(Part.Circle(App.Vector(0, 0, 0), App.Vector(0, 0, 1), 4.2), False)
sketch14.addGeometry(Part.Circle(App.Vector(-8.5, -0.2, 0), App.Vector(0, 0, 1), 1.6), False)
sketch14.addGeometry(Part.Circle(App.Vector(8.5, -0.2, 0), App.Vector(0, 0, 1), 1.6), False)
sketch14.addConstraint(Sketcher.Constraint("Coincident", 0, 3, -1, 1))
sketch14.addConstraint(Sketcher.Constraint("Equal", 1, 2))
sketch14.addConstraint(Sketcher.Constraint("Symmetric", 1, 3, 2, 3, -2))
sketch14.addConstraint(Sketcher.Constraint("Diameter", 0, 8.5))
sketch14.addConstraint(Sketcher.Constraint("Diameter", 1, 3.2))
sketch14.addConstraint(Sketcher.Constraint("DistanceX", 1, 3, 2, 3, 17.0))
sketch14.addConstraint(Sketcher.Constraint("DistanceY", 1, 3, -1, 1, 0.25))
sketch14.setExpression("Constraints[3]", "Params.sketch14_diameter")
sketch14.setExpression("Constraints[4]", "Params.sketch14_diameter2")
pocket9 = doc.addObject("PartDesign::Pocket", "Pocket008")
body.addObject(pocket9)
pocket9.Profile = sketch14
pocket9.setExpression("Length", "Params.pocket9_length")
pocket9.Reversed = True

# Sketch on XY plane
sketch15 = doc.addObject("Sketcher::SketchObject", "Sketch014")
body.addObject(sketch15)
sketch15.AttachmentSupport = (doc.XY_Plane, [""])
sketch15.MapMode = "FlatFace"
sketch15.AttachmentOffset = App.Placement(App.Vector(0, 0, 4), App.Rotation())
sketch15.addGeometry(Part.Circle(App.Vector(-8.5, -0.2, 0), App.Vector(0, 0, 1), 2.9), False)
sketch15.addGeometry(Part.Circle(App.Vector(8.5, -0.2, 0), App.Vector(0, 0, 1), 2.9), False)
sketch15.addConstraint(Sketcher.Constraint("Equal", 0, 1))
sketch15.addConstraint(Sketcher.Constraint("Symmetric", 0, 3, 1, 3, -2))
sketch15.addConstraint(Sketcher.Constraint("Diameter", 0, 5.8))
sketch15.addConstraint(Sketcher.Constraint("DistanceX", 0, 3, 1, 3, 17.0))
sketch15.addConstraint(Sketcher.Constraint("DistanceY", 0, 3, -1, 1, 0.25))
sketch15.setExpression("Constraints[2]", "Params.sketch15_diameter")
pocket10 = doc.addObject("PartDesign::Pocket", "Pocket009")
body.addObject(pocket10)
pocket10.Profile = sketch15
pocket10.setExpression("Length", "Params.pocket10_length")
doc.recompute()

fillet = doc.addObject("PartDesign::Fillet", "Fillet")
body.addObject(fillet)
fillet.Base = (pocket10, edges_at(pocket10, [(12.497, -0.25, 2), (-12.497, -0.25, 2)]))
fillet.setExpression("Radius", "Params.fillet_radius")

# Sketch on XZ plane
sketch16 = doc.addObject("Sketcher::SketchObject", "Sketch015")
body.addObject(sketch16)
sketch16.AttachmentSupport = (doc.XZ_Plane, [""])
sketch16.MapMode = "FlatFace"
sketch16.AttachmentOffset = App.Placement(App.Vector(0, 0, 1.8), App.Rotation())
add_polygon(sketch16, [(12.9, 38), (12.9, 46.1), (18.5, 46.1), (18.5, 38)])  # lines 0-3
add_polygon(sketch16, [(13.9, 162.7), (13.9, 171), (18.5, 171), (18.5, 162.7)])  # lines 4-7
sketch16.addConstraint(Sketcher.Constraint("Vertical", 0))
sketch16.addConstraint(Sketcher.Constraint("Horizontal", 1))
sketch16.addConstraint(Sketcher.Constraint("Vertical", 2))
sketch16.addConstraint(Sketcher.Constraint("Horizontal", 3))
sketch16.addConstraint(Sketcher.Constraint("Vertical", 4))
sketch16.addConstraint(Sketcher.Constraint("Horizontal", 5))
sketch16.addConstraint(Sketcher.Constraint("Vertical", 6))
sketch16.addConstraint(Sketcher.Constraint("Horizontal", 7))
sketch16.addConstraint(Sketcher.Constraint("Vertical", 2, 2, 5, 2))
sketch16.addConstraint(Sketcher.Constraint("DistanceX", 1, 1, 1, 2, 5.6))
sketch16.addConstraint(Sketcher.Constraint("DistanceX", 5, 1, 5, 2, 4.6))
sketch16.addConstraint(Sketcher.Constraint("DistanceY", 0, 1, 0, 2, 8.1))
sketch16.addConstraint(Sketcher.Constraint("DistanceY", 4, 1, 4, 2, 8.3))
sketch16.addConstraint(Sketcher.Constraint("DistanceY", -1, 1, 2, 2, 38.0))
sketch16.addConstraint(Sketcher.Constraint("DistanceY", -1, 1, 4, 2, 171.0))
sketch16.addConstraint(Sketcher.Constraint("DistanceX", -1, 1, 0, 2, 12.9))
sketch16.setExpression("Constraints[17]", "Params.sketch16_width")
sketch16.setExpression("Constraints[18]", "Params.sketch16_width2")
sketch16.setExpression("Constraints[19]", "Params.sketch16_height")
sketch16.setExpression("Constraints[20]", "Params.sketch16_height2")
pad6 = doc.addObject("PartDesign::Pad", "Pad005")
body.addObject(pad6)
pad6.Profile = sketch16
pad6.setExpression("Length", "Params.pad6_length")
pad6.Reversed = True

# Sketch on XY plane
sketch17 = doc.addObject("Sketcher::SketchObject", "Sketch016")
body.addObject(sketch17)
sketch17.AttachmentSupport = (doc.XY_Plane, [""])
sketch17.MapMode = "FlatFace"
sketch17.AttachmentOffset = App.Placement(App.Vector(0, 0, 173.5), App.Rotation())
sketch17.addGeometry(Part.LineSegment(App.Vector(-11, -16.6, 0), App.Vector(11, -16.6, 0)), False)
sketch17.addGeometry(Part.ArcOfCircle(Part.Circle(App.Vector(0, 0, 0), App.Vector(0, 0, 1), 19.9), math.radians(-57), math.radians(-22)), False)
sketch17.addGeometry(Part.LineSegment(App.Vector(18.5, -7.3, 0), App.Vector(18.5, -16, 0)), False)
sketch17.addGeometry(Part.LineSegment(App.Vector(18.5, -16, 0), App.Vector(16, -18.5, 0)), False)
sketch17.addGeometry(Part.LineSegment(App.Vector(16, -18.5, 0), App.Vector(-16, -18.5, 0)), False)
sketch17.addGeometry(Part.LineSegment(App.Vector(-16, -18.5, 0), App.Vector(-18.5, -16, 0)), False)
sketch17.addGeometry(Part.LineSegment(App.Vector(-18.5, -16, 0), App.Vector(-18.5, -7.3, 0)), False)
sketch17.addGeometry(Part.ArcOfCircle(Part.Circle(App.Vector(0, 0, 0), App.Vector(0, 0, 1), 19.9), math.radians(-158), math.radians(-123)), False)
sketch17.addConstraint(Sketcher.Constraint("Coincident", 0, 2, 1, 1))
sketch17.addConstraint(Sketcher.Constraint("Coincident", 1, 2, 2, 1))
sketch17.addConstraint(Sketcher.Constraint("Coincident", 2, 2, 3, 1))
sketch17.addConstraint(Sketcher.Constraint("Coincident", 3, 2, 4, 1))
sketch17.addConstraint(Sketcher.Constraint("Coincident", 4, 2, 5, 1))
sketch17.addConstraint(Sketcher.Constraint("Coincident", 5, 2, 6, 1))
sketch17.addConstraint(Sketcher.Constraint("Coincident", 6, 2, 7, 1))
sketch17.addConstraint(Sketcher.Constraint("Coincident", 7, 2, 0, 1))
sketch17.addConstraint(Sketcher.Constraint("Horizontal", 0))
sketch17.addConstraint(Sketcher.Constraint("Vertical", 2))
sketch17.addConstraint(Sketcher.Constraint("Horizontal", 4))
sketch17.addConstraint(Sketcher.Constraint("Vertical", 6))
sketch17.addConstraint(Sketcher.Constraint("Coincident", 1, 3, -1, 1))
sketch17.addConstraint(Sketcher.Constraint("Coincident", 7, 3, -1, 1))
sketch17.addConstraint(Sketcher.Constraint("Equal", 1, 7))
sketch17.addConstraint(Sketcher.Constraint("Symmetric", 2, 2, 5, 2, -2))
sketch17.addConstraint(Sketcher.Constraint("Perpendicular", 3, 5))
sketch17.addConstraint(Sketcher.Constraint("Equal", 3, 5))
sketch17.addConstraint(Sketcher.Constraint("Radius", 1, 19.9))
sketch17.addConstraint(Sketcher.Constraint("DistanceY", 0, 2, -1, 1, 16.6))
sketch17.addConstraint(Sketcher.Constraint("DistanceX", -1, 1, 1, 2, 18.5))
sketch17.addConstraint(Sketcher.Constraint("DistanceY", 3, 2, -1, 1, 18.5))
sketch17.addConstraint(Sketcher.Constraint("DistanceX", 4, 2, 4, 1, 31.928932))
sketch17.setExpression("Constraints[18]", "Params.sketch17_radius")
pad7 = doc.addObject("PartDesign::Pad", "Pad006")
body.addObject(pad7)
pad7.Profile = sketch17
pad7.setExpression("Length", "Params.pad7_length")
pad7.Reversed = True

doc.recompute()
